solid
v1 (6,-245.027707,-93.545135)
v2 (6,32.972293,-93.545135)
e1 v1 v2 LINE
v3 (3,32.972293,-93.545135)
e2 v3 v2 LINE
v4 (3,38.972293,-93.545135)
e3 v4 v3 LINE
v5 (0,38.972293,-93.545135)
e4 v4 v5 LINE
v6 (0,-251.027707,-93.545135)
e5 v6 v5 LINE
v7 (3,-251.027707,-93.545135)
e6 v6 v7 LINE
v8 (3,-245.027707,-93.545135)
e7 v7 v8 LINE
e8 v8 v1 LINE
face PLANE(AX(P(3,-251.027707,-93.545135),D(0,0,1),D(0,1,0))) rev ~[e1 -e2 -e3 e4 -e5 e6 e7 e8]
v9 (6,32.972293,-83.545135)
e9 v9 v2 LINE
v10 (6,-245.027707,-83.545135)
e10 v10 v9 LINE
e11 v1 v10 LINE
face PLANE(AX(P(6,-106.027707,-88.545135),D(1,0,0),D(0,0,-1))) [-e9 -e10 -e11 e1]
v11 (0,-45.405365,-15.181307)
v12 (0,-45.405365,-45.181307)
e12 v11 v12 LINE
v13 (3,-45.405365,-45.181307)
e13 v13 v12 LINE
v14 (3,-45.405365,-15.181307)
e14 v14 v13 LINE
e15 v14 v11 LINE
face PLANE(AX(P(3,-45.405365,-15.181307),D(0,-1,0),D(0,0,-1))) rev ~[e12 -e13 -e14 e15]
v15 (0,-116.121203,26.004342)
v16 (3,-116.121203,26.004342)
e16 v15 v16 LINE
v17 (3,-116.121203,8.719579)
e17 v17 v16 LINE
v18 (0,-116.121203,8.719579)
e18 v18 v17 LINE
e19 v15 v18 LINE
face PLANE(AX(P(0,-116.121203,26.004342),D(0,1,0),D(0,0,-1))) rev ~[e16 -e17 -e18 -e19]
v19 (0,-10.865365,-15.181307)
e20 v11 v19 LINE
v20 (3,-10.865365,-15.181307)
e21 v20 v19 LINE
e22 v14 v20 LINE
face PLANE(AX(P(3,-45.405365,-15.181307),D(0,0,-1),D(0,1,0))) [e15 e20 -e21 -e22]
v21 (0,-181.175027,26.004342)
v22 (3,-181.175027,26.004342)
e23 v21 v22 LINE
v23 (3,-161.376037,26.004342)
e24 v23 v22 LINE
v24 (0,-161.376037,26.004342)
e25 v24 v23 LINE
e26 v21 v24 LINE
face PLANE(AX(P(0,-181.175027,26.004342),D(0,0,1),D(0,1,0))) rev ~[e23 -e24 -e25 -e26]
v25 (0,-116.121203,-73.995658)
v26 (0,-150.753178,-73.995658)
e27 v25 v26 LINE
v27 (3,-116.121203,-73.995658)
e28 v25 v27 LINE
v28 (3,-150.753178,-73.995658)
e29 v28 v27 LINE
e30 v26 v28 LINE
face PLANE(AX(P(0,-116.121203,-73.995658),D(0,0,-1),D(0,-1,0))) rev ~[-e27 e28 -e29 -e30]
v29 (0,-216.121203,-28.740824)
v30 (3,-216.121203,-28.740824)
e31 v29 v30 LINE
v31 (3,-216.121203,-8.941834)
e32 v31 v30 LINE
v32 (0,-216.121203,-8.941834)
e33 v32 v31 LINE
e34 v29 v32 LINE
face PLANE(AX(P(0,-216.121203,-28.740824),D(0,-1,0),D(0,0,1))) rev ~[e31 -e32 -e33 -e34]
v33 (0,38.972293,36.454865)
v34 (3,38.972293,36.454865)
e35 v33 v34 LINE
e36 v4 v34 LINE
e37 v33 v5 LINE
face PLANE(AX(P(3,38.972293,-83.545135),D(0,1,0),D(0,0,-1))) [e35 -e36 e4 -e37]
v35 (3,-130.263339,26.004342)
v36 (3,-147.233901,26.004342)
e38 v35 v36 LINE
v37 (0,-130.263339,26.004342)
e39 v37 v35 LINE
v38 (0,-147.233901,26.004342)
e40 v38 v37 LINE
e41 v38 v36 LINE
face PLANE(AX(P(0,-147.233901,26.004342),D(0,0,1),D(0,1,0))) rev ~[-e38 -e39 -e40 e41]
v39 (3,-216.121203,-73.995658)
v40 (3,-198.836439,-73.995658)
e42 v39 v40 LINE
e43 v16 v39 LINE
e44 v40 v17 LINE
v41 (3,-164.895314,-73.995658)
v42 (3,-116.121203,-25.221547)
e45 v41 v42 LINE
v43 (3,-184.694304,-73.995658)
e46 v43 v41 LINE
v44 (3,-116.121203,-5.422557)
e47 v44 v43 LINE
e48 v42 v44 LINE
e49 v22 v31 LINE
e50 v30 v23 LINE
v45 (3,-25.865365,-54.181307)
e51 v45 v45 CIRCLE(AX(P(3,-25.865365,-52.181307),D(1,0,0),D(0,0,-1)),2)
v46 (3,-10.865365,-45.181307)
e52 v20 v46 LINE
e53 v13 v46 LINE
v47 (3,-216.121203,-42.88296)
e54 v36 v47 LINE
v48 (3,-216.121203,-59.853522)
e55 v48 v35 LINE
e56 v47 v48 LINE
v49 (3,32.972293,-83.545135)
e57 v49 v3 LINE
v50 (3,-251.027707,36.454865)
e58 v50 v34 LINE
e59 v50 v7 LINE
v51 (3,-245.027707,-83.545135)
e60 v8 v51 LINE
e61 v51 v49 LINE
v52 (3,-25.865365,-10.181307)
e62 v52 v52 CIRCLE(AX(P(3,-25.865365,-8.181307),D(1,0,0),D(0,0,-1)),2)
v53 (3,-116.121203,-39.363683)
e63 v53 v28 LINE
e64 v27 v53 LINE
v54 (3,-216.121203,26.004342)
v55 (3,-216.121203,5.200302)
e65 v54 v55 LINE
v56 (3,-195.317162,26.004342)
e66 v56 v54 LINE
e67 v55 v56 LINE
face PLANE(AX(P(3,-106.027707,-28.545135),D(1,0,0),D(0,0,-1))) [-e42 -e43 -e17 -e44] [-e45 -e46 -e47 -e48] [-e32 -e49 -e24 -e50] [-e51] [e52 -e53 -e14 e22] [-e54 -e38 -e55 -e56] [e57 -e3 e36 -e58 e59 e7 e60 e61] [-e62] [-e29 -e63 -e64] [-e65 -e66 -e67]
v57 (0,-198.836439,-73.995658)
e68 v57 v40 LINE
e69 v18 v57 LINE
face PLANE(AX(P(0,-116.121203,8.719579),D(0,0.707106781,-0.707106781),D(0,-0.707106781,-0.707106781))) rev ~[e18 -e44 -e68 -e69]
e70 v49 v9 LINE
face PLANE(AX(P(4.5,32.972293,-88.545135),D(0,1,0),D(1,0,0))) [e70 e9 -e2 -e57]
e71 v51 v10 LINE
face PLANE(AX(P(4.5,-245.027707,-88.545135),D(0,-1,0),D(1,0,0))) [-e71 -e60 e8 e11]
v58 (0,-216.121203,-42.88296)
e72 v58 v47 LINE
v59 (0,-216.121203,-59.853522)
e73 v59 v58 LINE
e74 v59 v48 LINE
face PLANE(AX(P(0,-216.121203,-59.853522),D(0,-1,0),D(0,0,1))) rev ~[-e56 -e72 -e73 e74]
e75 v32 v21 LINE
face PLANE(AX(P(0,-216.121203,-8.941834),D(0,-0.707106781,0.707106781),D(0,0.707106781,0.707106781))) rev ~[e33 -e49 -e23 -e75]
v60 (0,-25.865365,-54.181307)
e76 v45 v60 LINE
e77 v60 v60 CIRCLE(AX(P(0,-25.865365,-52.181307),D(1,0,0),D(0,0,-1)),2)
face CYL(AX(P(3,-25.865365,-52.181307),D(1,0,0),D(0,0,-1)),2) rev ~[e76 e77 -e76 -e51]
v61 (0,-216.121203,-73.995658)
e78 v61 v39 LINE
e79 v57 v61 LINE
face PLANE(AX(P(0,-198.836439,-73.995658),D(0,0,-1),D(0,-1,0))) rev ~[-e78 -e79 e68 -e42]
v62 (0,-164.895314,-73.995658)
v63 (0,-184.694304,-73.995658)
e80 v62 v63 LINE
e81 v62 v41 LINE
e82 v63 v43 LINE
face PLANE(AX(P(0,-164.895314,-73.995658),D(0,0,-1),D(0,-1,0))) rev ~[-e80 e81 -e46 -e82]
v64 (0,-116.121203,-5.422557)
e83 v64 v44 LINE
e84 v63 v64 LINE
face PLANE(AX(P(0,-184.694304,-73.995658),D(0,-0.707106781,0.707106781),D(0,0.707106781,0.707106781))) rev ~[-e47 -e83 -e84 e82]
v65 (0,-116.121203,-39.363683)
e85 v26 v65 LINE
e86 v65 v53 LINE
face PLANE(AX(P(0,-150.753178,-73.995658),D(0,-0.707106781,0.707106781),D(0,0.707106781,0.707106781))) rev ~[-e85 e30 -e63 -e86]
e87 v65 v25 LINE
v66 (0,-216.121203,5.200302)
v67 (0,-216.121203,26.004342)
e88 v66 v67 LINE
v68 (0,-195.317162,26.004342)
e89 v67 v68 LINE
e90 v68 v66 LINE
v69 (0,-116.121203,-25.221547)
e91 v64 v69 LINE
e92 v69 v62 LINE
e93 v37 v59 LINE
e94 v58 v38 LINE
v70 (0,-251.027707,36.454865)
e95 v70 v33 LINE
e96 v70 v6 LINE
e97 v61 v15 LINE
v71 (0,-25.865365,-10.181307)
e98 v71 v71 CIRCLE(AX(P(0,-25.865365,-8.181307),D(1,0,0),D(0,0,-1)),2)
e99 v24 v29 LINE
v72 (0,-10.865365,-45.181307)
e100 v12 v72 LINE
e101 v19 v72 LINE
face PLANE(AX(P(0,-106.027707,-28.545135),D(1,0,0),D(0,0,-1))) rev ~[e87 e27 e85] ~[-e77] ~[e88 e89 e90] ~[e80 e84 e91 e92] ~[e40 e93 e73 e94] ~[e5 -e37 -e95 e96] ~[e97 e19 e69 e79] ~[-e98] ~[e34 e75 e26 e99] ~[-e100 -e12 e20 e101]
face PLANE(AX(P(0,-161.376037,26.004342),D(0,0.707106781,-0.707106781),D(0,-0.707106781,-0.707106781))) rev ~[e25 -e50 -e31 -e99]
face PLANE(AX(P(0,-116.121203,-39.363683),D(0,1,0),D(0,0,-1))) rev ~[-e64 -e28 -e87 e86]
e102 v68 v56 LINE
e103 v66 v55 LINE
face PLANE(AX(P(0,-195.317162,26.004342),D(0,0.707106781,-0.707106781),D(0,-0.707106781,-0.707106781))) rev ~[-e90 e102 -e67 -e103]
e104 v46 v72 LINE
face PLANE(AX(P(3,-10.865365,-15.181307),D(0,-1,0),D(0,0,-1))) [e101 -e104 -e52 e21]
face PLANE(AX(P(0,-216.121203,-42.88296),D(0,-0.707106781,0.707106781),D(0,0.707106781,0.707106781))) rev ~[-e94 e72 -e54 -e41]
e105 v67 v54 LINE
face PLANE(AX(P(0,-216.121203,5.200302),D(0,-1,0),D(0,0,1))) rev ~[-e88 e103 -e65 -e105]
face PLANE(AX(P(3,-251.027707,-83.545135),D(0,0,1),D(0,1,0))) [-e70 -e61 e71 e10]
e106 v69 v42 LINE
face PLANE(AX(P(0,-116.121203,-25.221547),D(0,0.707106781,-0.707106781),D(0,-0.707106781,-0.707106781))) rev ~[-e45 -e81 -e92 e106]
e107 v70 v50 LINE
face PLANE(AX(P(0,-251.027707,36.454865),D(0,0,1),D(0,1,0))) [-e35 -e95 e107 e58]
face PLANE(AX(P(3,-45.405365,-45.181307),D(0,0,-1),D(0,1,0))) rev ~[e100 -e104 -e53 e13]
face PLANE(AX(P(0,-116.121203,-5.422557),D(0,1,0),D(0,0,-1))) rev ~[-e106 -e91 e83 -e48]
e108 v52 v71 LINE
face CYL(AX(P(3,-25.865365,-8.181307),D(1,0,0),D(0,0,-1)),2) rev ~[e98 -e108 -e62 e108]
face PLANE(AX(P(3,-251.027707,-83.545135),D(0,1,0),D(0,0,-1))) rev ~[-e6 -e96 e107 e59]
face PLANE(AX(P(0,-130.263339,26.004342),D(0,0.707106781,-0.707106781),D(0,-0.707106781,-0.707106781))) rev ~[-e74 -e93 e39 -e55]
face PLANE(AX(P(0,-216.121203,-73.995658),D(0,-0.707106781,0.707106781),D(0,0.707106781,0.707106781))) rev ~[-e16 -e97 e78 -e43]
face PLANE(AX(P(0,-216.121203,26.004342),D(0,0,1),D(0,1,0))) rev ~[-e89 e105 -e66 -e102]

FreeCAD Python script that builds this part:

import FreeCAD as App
import Part
import Sketcher

V = App.Vector

doc = App.newDocument("Part")
body = doc.addObject("PartDesign::Body", "Body")

sketch1 = body.newObject("Sketcher::SketchObject", "Sketch")
sketch1.AttachmentSupport = (doc.getObject("YZ_Plane"), [""])
sketch1.MapMode = "FlatFace"
sketch1.addGeometry(Part.LineSegment(V(39, 36, 0), V(-251, 36, 0)), False)
sketch1.addGeometry(Part.LineSegment(V(-251, 36, 0), V(-251, -94, 0)), False)
sketch1.addGeometry(Part.LineSegment(V(-251, -94, 0), V(39, -94, 0)), False)
sketch1.addGeometry(Part.LineSegment(V(39, -94, 0), V(39, 36, 0)), False)
sketch1.addConstraint(Sketcher.Constraint("Coincident", 0, 2, 1, 1))
sketch1.addConstraint(Sketcher.Constraint("Coincident", 1, 2, 2, 1))
sketch1.addConstraint(Sketcher.Constraint("Coincident", 2, 2, 3, 1))
sketch1.addConstraint(Sketcher.Constraint("Coincident", 3, 2, 0, 1))
sketch1.addConstraint(Sketcher.Constraint("Horizontal", 0))
sketch1.addConstraint(Sketcher.Constraint("Vertical", 1))
sketch1.addConstraint(Sketcher.Constraint("Horizontal", 2))
sketch1.addConstraint(Sketcher.Constraint("Vertical", 3))
sketch1.addConstraint(Sketcher.Constraint("DistanceX", 0, 2, 0, 1, 290.0))
sketch1.addConstraint(Sketcher.Constraint("DistanceY", 1, 2, 1, 1, 130.0))
sketch1.addConstraint(Sketcher.Constraint("DistanceX", 0, 2, -1, 1, 251.027707))
sketch1.addConstraint(Sketcher.Constraint("DistanceY", -1, 1, 0, 2, 36.454865))
pad1 = body.newObject("PartDesign::Pad", "Pad")
pad1.Profile = sketch1
pad1.Length = 3

sketch2 = body.newObject("Sketcher::SketchObject", "Sketch001")
sketch2.AttachmentSupport = (doc.getObject("YZ_Plane"), [""])
sketch2.MapMode = "FlatFace"
sketch2.AttachmentOffset = App.Placement(V(0, 0, 3), App.Rotation())
sketch2.addGeometry(Part.LineSegment(V(-11, -15, 0), V(-45, -15, 0)), False)
sketch2.addGeometry(Part.LineSegment(V(-45, -15, 0), V(-45, -45, 0)), False)
sketch2.addGeometry(Part.LineSegment(V(-45, -45, 0), V(-11, -45, 0)), False)
sketch2.addGeometry(Part.LineSegment(V(-11, -45, 0), V(-11, -15, 0)), False)
sketch2.addConstraint(Sketcher.Constraint("Coincident", 0, 2, 1, 1))
sketch2.addConstraint(Sketcher.Constraint("Coincident", 1, 2, 2, 1))
sketch2.addConstraint(Sketcher.Constraint("Coincident", 2, 2, 3, 1))
sketch2.addConstraint(Sketcher.Constraint("Coincident", 3, 2, 0, 1))
sketch2.addConstraint(Sketcher.Constraint("Horizontal", 0))
sketch2.addConstraint(Sketcher.Constraint("Vertical", 1))
sketch2.addConstraint(Sketcher.Constraint("Horizontal", 2))
sketch2.addConstraint(Sketcher.Constraint("Vertical", 3))
sketch2.addConstraint(Sketcher.Constraint("DistanceY", 1, 2, 1, 1, 30.0))
sketch2.addConstraint(Sketcher.Constraint("DistanceX", 0, 2, 0, 1, 34.54))
sketch2.addConstraint(Sketcher.Constraint("DistanceX", 0, 2, -1, 1, 45.405365))
sketch2.addConstraint(Sketcher.Constraint("DistanceY", 0, 2, -1, 1, 15.181307))
pocket1 = body.newObject("PartDesign::Pocket", "Pocket")
pocket1.Profile = sketch2
pocket1.Length = 3

sketch3 = body.newObject("Sketcher::SketchObject", "Sketch002")
sketch3.AttachmentSupport = (doc.getObject("YZ_Plane"), [""])
sketch3.MapMode = "FlatFace"
sketch3.AttachmentOffset = App.Placement(V(0, 0, 3), App.Rotation())
sketch3.addGeometry(Part.Circle(V(-25.9, -52.2, 0), V(0, 0, 1), 2), False)
sketch3.addGeometry(Part.Circle(V(-25.9, -8.2, 0), V(0, 0, 1), 2), False)
sketch3.addConstraint(Sketcher.Constraint("Equal", 0, 1))
sketch3.addConstraint(Sketcher.Constraint("Vertical", 0, 3, 1, 3))
sketch3.addConstraint(Sketcher.Constraint("Diameter", 0, 4.0))
sketch3.addConstraint(Sketcher.Constraint("DistanceY", 0, 3, 1, 3, 44.0))
sketch3.addConstraint(Sketcher.Constraint("DistanceX", 0, 3, -1, 1, 25.865365))
sketch3.addConstraint(Sketcher.Constraint("DistanceY", 0, 3, -1, 1, 52.181307))
pocket2 = body.newObject("PartDesign::Pocket", "Pocket001")
pocket2.Profile = sketch3
pocket2.Length = 3

sketch4 = body.newObject("Sketcher::SketchObject", "Sketch003")
sketch4.AttachmentSupport = (doc.getObject("YZ_Plane"), [""])
sketch4.MapMode = "FlatFace"
sketch4.addGeometry(Part.LineSegment(V(-116, -74, 0), V(-151, -74, 0)), False)
sketch4.addGeometry(Part.LineSegment(V(-151, -74, 0), V(-116, -39, 0)), False)
sketch4.addGeometry(Part.LineSegment(V(-116, -39, 0), V(-116, -74, 0)), False)
sketch4.addGeometry(Part.LineSegment(V(-116, -25, 0), V(-165, -74, 0)), False)
sketch4.addGeometry(Part.LineSegment(V(-165, -74, 0), V(-185, -74, 0)), False)
sketch4.addGeometry(Part.LineSegment(V(-185, -74, 0), V(-116, -5, 0)), False)
sketch4.addGeometry(Part.LineSegment(V(-116, -5, 0), V(-116, -25, 0)), False)
sketch4.addGeometry(Part.LineSegment(V(-116, 9, 0), V(-199, -74, 0)), False)
sketch4.addGeometry(Part.LineSegment(V(-199, -74, 0), V(-216, -74, 0)), False)
sketch4.addGeometry(Part.LineSegment(V(-216, -74, 0), V(-116, 26, 0)), False)
sketch4.addGeometry(Part.LineSegment(V(-116, 26, 0), V(-116, 9, 0)), False)
sketch4.addGeometry(Part.LineSegment(V(-130, 26, 0), V(-216, -60, 0)), False)
sketch4.addGeometry(Part.LineSegment(V(-216, -60, 0), V(-216, -43, 0)), False)
sketch4.addGeometry(Part.LineSegment(V(-216, -43, 0), V(-147, 26, 0)), False)
sketch4.addGeometry(Part.LineSegment(V(-147, 26, 0), V(-130, 26, 0)), False)
sketch4.addGeometry(Part.LineSegment(V(-161, 26, 0), V(-216, -29, 0)), False)
sketch4.addGeometry(Part.LineSegment(V(-216, -29, 0), V(-216, -9, 0)), False)
sketch4.addGeometry(Part.LineSegment(V(-216, -9, 0), V(-181, 26, 0)), False)
sketch4.addGeometry(Part.LineSegment(V(-181, 26, 0), V(-161, 26, 0)), False)
sketch4.addGeometry(Part.LineSegment(V(-195, 26, 0), V(-216, 5, 0)), False)
sketch4.addGeometry(Part.LineSegment(V(-216, 5, 0), V(-216, 26, 0)), False)
sketch4.addGeometry(Part.LineSegment(V(-216, 26, 0), V(-195, 26, 0)), False)
sketch4.addConstraint(Sketcher.Constraint("Coincident", 0, 2, 1, 1))
sketch4.addConstraint(Sketcher.Constraint("Coincident", 1, 2, 2, 1))
sketch4.addConstraint(Sketcher.Constraint("Coincident", 2, 2, 0, 1))
sketch4.addConstraint(Sketcher.Constraint("Coincident", 3, 2, 4, 1))
sketch4.addConstraint(Sketcher.Constraint("Coincident", 4, 2, 5, 1))
sketch4.addConstraint(Sketcher.Constraint("Coincident", 5, 2, 6, 1))
sketch4.addConstraint(Sketcher.Constraint("Coincident", 6, 2, 3, 1))
sketch4.addConstraint(Sketcher.Constraint("Coincident", 7, 2, 8, 1))
sketch4.addConstraint(Sketcher.Constraint("Coincident", 8, 2, 9, 1))
sketch4.addConstraint(Sketcher.Constraint("Coincident", 9, 2, 10, 1))
sketch4.addConstraint(Sketcher.Constraint("Coincident", 10, 2, 7, 1))
sketch4.addConstraint(Sketcher.Constraint("Coincident", 11, 2, 12, 1))
sketch4.addConstraint(Sketcher.Constraint("Coincident", 12, 2, 13, 1))
sketch4.addConstraint(Sketcher.Constraint("Coincident", 13, 2, 14, 1))
sketch4.addConstraint(Sketcher.Constraint("Coincident", 14, 2, 11, 1))
sketch4.addConstraint(Sketcher.Constraint("Coincident", 15, 2, 16, 1))
sketch4.addConstraint(Sketcher.Constraint("Coincident", 16, 2, 17, 1))
sketch4.addConstraint(Sketcher.Constraint("Coincident", 17, 2, 18, 1))
sketch4.addConstraint(Sketcher.Constraint("Coincident", 18, 2, 15, 1))
sketch4.addConstraint(Sketcher.Constraint("Coincident", 19, 2, 20, 1))
sketch4.addConstraint(Sketcher.Constraint("Coincident", 20, 2, 21, 1))
sketch4.addConstraint(Sketcher.Constraint("Coincident", 21, 2, 19, 1))
sketch4.addConstraint(Sketcher.Constraint("Horizontal", 0))
sketch4.addConstraint(Sketcher.Constraint("Vertical", 2))
sketch4.addConstraint(Sketcher.Constraint("Horizontal", 4))
sketch4.addConstraint(Sketcher.Constraint("Vertical", 6))
sketch4.addConstraint(Sketcher.Constraint("Horizontal", 8))
sketch4.addConstraint(Sketcher.Constraint("Vertical", 10))
sketch4.addConstraint(Sketcher.Constraint("Vertical", 12))
sketch4.addConstraint(Sketcher.Constraint("Horizontal", 14))
sketch4.addConstraint(Sketcher.Constraint("Vertical", 16))
sketch4.addConstraint(Sketcher.Constraint("Horizontal", 18))
sketch4.addConstraint(Sketcher.Constraint("Vertical", 20))
sketch4.addConstraint(Sketcher.Constraint("Horizontal", 21))
sketch4.addConstraint(Sketcher.Constraint("Parallel", 1, 3))
sketch4.addConstraint(Sketcher.Constraint("Parallel", 3, 5))
sketch4.addConstraint(Sketcher.Constraint("Parallel", 5, 7))
sketch4.addConstraint(Sketcher.Constraint("Parallel", 7, 9))
sketch4.addConstraint(Sketcher.Constraint("Parallel", 9, 11))
sketch4.addConstraint(Sketcher.Constraint("Parallel", 11, 13))
sketch4.addConstraint(Sketcher.Constraint("Parallel", 13, 15))
sketch4.addConstraint(Sketcher.Constraint("Parallel", 15, 17))
sketch4.addConstraint(Sketcher.Constraint("Parallel", 17, 19))
sketch4.addConstraint(Sketcher.Constraint("Horizontal", 2, 2, 3, 2))
sketch4.addConstraint(Sketcher.Constraint("Horizontal", 4, 2, 7, 2))
sketch4.addConstraint(Sketcher.Constraint("Horizontal", 9, 2, 13, 2))
sketch4.addConstraint(Sketcher.Constraint("Horizontal", 14, 2, 17, 2))
sketch4.addConstraint(Sketcher.Constraint("Horizontal", 18, 2, 20, 2))
sketch4.addConstraint(Sketcher.Constraint("Vertical", 2, 2, 5, 2))
sketch4.addConstraint(Sketcher.Constraint("Vertical", 6, 2, 9, 2))
sketch4.addConstraint(Sketcher.Constraint("Vertical", 8, 2, 11, 2))
sketch4.addConstraint(Sketcher.Constraint("Vertical", 12, 2, 15, 2))
sketch4.addConstraint(Sketcher.Constraint("Vertical", 16, 2, 19, 2))
sketch4.addConstraint(Sketcher.Constraint("Equal", 4, 18))
sketch4.addConstraint(Sketcher.Constraint("Equal", 0, 2))
sketch4.addConstraint(Sketcher.Constraint("DistanceX", 8, 2, 2, 2, 100.0))
sketch4.addConstraint(Sketcher.Constraint("DistanceX", 4, 2, 4, 1, 19.79899))
sketch4.addConstraint(Sketcher.Constraint("DistanceX", 21, 1, 21, 2, 20.804041))
sketch4.addConstraint(Sketcher.Constraint("DistanceX", 13, 2, -1, 1, 147.233901))
sketch4.addConstraint(Sketcher.Constraint("DistanceY", -1, 1, 19, 2, 5.200302))
sketch4.addConstraint(Sketcher.Constraint("DistanceX", 4, 2, 2, 2, 68.573101))
sketch4.addConstraint(Sketcher.Constraint("DistanceY", 8, 2, 12, 2, 31.112698))
sketch4.addConstraint(Sketcher.Constraint("DistanceY", 11, 2, 15, 2, 31.112698))
sketch4.addConstraint(Sketcher.Constraint("Distance", 1, 48.977009))
sketch4.addConstraint(Sketcher.Constraint("Distance", 7, 116.977009))
sketch4.addConstraint(Sketcher.Constraint("DistanceX", 14, 1, 14, 2, 16.970563))
pocket3 = body.newObject("PartDesign::Pocket", "Pocket002")
pocket3.Profile = sketch4
pocket3.Length = 10
pocket3.Reversed = True

sketch5 = body.newObject("Sketcher::SketchObject", "Sketch004")
sketch5.AttachmentSupport = (doc.getObject("YZ_Plane"), [""])
sketch5.MapMode = "FlatFace"
sketch5.AttachmentOffset = App.Placement(V(0, 0, 3), App.Rotation())
sketch5.addGeometry(Part.LineSegment(V(39, -84, 0), V(-251, -84, 0)), False)
sketch5.addGeometry(Part.LineSegment(V(-251, -84, 0), V(-251, -94, 0)), False)
sketch5.addGeometry(Part.LineSegment(V(-251, -94, 0), V(39, -94, 0)), False)
sketch5.addGeometry(Part.LineSegment(V(39, -94, 0), V(39, -84, 0)), False)
sketch5.addConstraint(Sketcher.Constraint("Coincident", 0, 2, 1, 1))
sketch5.addConstraint(Sketcher.Constraint("Coincident", 1, 2, 2, 1))
sketch5.addConstraint(Sketcher.Constraint("Coincident", 2, 2, 3, 1))
sketch5.addConstraint(Sketcher.Constraint("Coincident", 3, 2, 0, 1))
sketch5.addConstraint(Sketcher.Constraint("Horizontal", 0))
sketch5.addConstraint(Sketcher.Constraint("Vertical", 1))
sketch5.addConstraint(Sketcher.Constraint("Horizontal", 2))
sketch5.addConstraint(Sketcher.Constraint("Vertical", 3))
sketch5.addConstraint(Sketcher.Constraint("DistanceX", 0, 2, 0, 1, 290.0))
sketch5.addConstraint(Sketcher.Constraint("DistanceY", 1, 2, 1, 1, 10.0))
sketch5.addConstraint(Sketcher.Constraint("DistanceX", 0, 2, -1, 1, 251.027707))
sketch5.addConstraint(Sketcher.Constraint("DistanceY", 0, 2, -1, 1, 83.545135))
pad2 = body.newObject("PartDesign::Pad", "Pad001")
pad2.Profile = sketch5
pad2.Length = 3

sketch6 = body.newObject("Sketcher::SketchObject", "Sketch005")
sketch6.AttachmentSupport = (doc.getObject("XZ_Plane"), [""])
sketch6.MapMode = "FlatFace"
sketch6.AttachmentOffset = App.Placement(V(0, 0, -38.972293), App.Rotation())
sketch6.addGeometry(Part.LineSegment(V(3, -93.5, 0), V(3, -83.5, 0)), False)
sketch6.addGeometry(Part.LineSegment(V(3, -83.5, 0), V(6, -83.5, 0)), False)
sketch6.addGeometry(Part.LineSegment(V(6, -83.5, 0), V(6, -93.5, 0)), False)
sketch6.addGeometry(Part.LineSegment(V(6, -93.5, 0), V(3, -93.5, 0)), False)
sketch6.addConstraint(Sketcher.Constraint("Coincident", 0, 2, 1, 1))
sketch6.addConstraint(Sketcher.Constraint("Coincident", 1, 2, 2, 1))
sketch6.addConstraint(Sketcher.Constraint("Coincident", 2, 2, 3, 1))
sketch6.addConstraint(Sketcher.Constraint("Coincident", 3, 2, 0, 1))
sketch6.addConstraint(Sketcher.Constraint("Vertical", 0))
sketch6.addConstraint(Sketcher.Constraint("Horizontal", 1))
sketch6.addConstraint(Sketcher.Constraint("Vertical", 2))
sketch6.addConstraint(Sketcher.Constraint("Horizontal", 3))
sketch6.addConstraint(Sketcher.Constraint("DistanceX", 1, 1, 1, 2, 3.0))
sketch6.addConstraint(Sketcher.Constraint("DistanceY", 0, 1, 0, 2, 10.0))
sketch6.addConstraint(Sketcher.Constraint("DistanceX", -1, 1, 0, 2, 3.0))
sketch6.addConstraint(Sketcher.Constraint("DistanceY", 0, 2, -1, 1, 83.545135))
pocket4 = body.newObject("PartDesign::Pocket", "Pocket003")
pocket4.Profile = sketch6
pocket4.Length = 6
pocket4.Reversed = True

sketch7 = body.newObject("Sketcher::SketchObject", "Sketch006")
sketch7.AttachmentSupport = (doc.getObject("XZ_Plane"), [""])
sketch7.MapMode = "FlatFace"
sketch7.AttachmentOffset = App.Placement(V(0, 0, 251.027707), App.Rotation())
sketch7.addGeometry(Part.LineSegment(V(3, -83.5, 0), V(3, -93.5, 0)), False)
sketch7.addGeometry(Part.LineSegment(V(3, -93.5, 0), V(6, -93.5, 0)), False)
sketch7.addGeometry(Part.LineSegment(V(6, -93.5, 0), V(6, -83.5, 0)), False)
sketch7.addGeometry(Part.LineSegment(V(6, -83.5, 0), V(3, -83.5, 0)), False)
sketch7.addConstraint(Sketcher.Constraint("Coincident", 0, 2, 1, 1))
sketch7.addConstraint(Sketcher.Constraint("Coincident", 1, 2, 2, 1))
sketch7.addConstraint(Sketcher.Constraint("Coincident", 2, 2, 3, 1))
sketch7.addConstraint(Sketcher.Constraint("Coincident", 3, 2, 0, 1))
sketch7.addConstraint(Sketcher.Constraint("Vertical", 0))
sketch7.addConstraint(Sketcher.Constraint("Horizontal", 1))
sketch7.addConstraint(Sketcher.Constraint("Vertical", 2))
sketch7.addConstraint(Sketcher.Constraint("Horizontal", 3))
sketch7.addConstraint(Sketcher.Constraint("DistanceX", 1, 1, 1, 2, 3.0))
sketch7.addConstraint(Sketcher.Constraint("DistanceY", 0, 2, 0, 1, 10.0))
sketch7.addConstraint(Sketcher.Constraint("DistanceX", -1, 1, 0, 2, 3.0))
sketch7.addConstraint(Sketcher.Constraint("DistanceY", 0, 2, -1, 1, 93.545135))
pocket5 = body.newObject("PartDesign::Pocket", "Pocket004")
pocket5.Profile = sketch7
pocket5.Length = 6

doc.recompute()
